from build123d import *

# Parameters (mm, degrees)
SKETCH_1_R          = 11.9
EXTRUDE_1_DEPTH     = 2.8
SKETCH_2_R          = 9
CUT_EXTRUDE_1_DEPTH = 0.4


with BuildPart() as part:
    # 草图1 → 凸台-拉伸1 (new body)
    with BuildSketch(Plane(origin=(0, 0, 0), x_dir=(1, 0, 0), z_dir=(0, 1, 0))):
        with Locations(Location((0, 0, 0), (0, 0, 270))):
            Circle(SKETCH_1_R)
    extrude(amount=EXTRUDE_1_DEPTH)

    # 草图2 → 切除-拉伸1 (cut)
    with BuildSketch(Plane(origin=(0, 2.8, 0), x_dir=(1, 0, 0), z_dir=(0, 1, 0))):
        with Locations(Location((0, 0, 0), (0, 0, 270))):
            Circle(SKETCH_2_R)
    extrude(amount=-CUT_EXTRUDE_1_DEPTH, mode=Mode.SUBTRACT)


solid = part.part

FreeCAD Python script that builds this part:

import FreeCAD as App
import Part
import Sketcher

doc = App.newDocument("Part")
body = doc.addObject("PartDesign::Body", "Body")

# Sketch on XZ plane
sketch1 = body.newObject("Sketcher::SketchObject", "Sketch")
sketch1.AttachmentSupport = (doc.getObject("XZ_Plane"), [""])
sketch1.MapMode = "FlatFace"
sketch1.addGeometry(Part.Circle(App.Vector(0, 0, 0), App.Vector(0, 0, 1), 11.9), False)
sketch1.addConstraint(Sketcher.Constraint("Coincident", 0, 3, -1, 1))
sketch1.addConstraint(Sketcher.Constraint("Diameter", 0, 23.8))
pad1 = body.newObject("PartDesign::Pad", "Pad")
pad1.Profile = sketch1
pad1.Length = 2.8
pad1.Reversed = True

# Sketch on XZ plane
sketch2 = body.newObject("Sketcher::SketchObject", "Sketch001")
sketch2.AttachmentSupport = (doc.getObject("XZ_Plane"), [""])
sketch2.MapMode = "FlatFace"
sketch2.AttachmentOffset = App.Placement(App.Vector(0, 0, -2.8), App.Rotation())
sketch2.addGeometry(Part.Circle(App.Vector(0, 0, 0), App.Vector(0, 0, 1), 9), False)
sketch2.addConstraint(Sketcher.Constraint("Coincident", 0, 3, -1, 1))
sketch2.addConstraint(Sketcher.Constraint("Diameter", 0, 18.0))
pocket1 = body.newObject("PartDesign::Pocket", "Pocket")
pocket1.Profile = sketch2
pocket1.Length = 0.4
pocket1.Reversed = True

doc.recompute()
